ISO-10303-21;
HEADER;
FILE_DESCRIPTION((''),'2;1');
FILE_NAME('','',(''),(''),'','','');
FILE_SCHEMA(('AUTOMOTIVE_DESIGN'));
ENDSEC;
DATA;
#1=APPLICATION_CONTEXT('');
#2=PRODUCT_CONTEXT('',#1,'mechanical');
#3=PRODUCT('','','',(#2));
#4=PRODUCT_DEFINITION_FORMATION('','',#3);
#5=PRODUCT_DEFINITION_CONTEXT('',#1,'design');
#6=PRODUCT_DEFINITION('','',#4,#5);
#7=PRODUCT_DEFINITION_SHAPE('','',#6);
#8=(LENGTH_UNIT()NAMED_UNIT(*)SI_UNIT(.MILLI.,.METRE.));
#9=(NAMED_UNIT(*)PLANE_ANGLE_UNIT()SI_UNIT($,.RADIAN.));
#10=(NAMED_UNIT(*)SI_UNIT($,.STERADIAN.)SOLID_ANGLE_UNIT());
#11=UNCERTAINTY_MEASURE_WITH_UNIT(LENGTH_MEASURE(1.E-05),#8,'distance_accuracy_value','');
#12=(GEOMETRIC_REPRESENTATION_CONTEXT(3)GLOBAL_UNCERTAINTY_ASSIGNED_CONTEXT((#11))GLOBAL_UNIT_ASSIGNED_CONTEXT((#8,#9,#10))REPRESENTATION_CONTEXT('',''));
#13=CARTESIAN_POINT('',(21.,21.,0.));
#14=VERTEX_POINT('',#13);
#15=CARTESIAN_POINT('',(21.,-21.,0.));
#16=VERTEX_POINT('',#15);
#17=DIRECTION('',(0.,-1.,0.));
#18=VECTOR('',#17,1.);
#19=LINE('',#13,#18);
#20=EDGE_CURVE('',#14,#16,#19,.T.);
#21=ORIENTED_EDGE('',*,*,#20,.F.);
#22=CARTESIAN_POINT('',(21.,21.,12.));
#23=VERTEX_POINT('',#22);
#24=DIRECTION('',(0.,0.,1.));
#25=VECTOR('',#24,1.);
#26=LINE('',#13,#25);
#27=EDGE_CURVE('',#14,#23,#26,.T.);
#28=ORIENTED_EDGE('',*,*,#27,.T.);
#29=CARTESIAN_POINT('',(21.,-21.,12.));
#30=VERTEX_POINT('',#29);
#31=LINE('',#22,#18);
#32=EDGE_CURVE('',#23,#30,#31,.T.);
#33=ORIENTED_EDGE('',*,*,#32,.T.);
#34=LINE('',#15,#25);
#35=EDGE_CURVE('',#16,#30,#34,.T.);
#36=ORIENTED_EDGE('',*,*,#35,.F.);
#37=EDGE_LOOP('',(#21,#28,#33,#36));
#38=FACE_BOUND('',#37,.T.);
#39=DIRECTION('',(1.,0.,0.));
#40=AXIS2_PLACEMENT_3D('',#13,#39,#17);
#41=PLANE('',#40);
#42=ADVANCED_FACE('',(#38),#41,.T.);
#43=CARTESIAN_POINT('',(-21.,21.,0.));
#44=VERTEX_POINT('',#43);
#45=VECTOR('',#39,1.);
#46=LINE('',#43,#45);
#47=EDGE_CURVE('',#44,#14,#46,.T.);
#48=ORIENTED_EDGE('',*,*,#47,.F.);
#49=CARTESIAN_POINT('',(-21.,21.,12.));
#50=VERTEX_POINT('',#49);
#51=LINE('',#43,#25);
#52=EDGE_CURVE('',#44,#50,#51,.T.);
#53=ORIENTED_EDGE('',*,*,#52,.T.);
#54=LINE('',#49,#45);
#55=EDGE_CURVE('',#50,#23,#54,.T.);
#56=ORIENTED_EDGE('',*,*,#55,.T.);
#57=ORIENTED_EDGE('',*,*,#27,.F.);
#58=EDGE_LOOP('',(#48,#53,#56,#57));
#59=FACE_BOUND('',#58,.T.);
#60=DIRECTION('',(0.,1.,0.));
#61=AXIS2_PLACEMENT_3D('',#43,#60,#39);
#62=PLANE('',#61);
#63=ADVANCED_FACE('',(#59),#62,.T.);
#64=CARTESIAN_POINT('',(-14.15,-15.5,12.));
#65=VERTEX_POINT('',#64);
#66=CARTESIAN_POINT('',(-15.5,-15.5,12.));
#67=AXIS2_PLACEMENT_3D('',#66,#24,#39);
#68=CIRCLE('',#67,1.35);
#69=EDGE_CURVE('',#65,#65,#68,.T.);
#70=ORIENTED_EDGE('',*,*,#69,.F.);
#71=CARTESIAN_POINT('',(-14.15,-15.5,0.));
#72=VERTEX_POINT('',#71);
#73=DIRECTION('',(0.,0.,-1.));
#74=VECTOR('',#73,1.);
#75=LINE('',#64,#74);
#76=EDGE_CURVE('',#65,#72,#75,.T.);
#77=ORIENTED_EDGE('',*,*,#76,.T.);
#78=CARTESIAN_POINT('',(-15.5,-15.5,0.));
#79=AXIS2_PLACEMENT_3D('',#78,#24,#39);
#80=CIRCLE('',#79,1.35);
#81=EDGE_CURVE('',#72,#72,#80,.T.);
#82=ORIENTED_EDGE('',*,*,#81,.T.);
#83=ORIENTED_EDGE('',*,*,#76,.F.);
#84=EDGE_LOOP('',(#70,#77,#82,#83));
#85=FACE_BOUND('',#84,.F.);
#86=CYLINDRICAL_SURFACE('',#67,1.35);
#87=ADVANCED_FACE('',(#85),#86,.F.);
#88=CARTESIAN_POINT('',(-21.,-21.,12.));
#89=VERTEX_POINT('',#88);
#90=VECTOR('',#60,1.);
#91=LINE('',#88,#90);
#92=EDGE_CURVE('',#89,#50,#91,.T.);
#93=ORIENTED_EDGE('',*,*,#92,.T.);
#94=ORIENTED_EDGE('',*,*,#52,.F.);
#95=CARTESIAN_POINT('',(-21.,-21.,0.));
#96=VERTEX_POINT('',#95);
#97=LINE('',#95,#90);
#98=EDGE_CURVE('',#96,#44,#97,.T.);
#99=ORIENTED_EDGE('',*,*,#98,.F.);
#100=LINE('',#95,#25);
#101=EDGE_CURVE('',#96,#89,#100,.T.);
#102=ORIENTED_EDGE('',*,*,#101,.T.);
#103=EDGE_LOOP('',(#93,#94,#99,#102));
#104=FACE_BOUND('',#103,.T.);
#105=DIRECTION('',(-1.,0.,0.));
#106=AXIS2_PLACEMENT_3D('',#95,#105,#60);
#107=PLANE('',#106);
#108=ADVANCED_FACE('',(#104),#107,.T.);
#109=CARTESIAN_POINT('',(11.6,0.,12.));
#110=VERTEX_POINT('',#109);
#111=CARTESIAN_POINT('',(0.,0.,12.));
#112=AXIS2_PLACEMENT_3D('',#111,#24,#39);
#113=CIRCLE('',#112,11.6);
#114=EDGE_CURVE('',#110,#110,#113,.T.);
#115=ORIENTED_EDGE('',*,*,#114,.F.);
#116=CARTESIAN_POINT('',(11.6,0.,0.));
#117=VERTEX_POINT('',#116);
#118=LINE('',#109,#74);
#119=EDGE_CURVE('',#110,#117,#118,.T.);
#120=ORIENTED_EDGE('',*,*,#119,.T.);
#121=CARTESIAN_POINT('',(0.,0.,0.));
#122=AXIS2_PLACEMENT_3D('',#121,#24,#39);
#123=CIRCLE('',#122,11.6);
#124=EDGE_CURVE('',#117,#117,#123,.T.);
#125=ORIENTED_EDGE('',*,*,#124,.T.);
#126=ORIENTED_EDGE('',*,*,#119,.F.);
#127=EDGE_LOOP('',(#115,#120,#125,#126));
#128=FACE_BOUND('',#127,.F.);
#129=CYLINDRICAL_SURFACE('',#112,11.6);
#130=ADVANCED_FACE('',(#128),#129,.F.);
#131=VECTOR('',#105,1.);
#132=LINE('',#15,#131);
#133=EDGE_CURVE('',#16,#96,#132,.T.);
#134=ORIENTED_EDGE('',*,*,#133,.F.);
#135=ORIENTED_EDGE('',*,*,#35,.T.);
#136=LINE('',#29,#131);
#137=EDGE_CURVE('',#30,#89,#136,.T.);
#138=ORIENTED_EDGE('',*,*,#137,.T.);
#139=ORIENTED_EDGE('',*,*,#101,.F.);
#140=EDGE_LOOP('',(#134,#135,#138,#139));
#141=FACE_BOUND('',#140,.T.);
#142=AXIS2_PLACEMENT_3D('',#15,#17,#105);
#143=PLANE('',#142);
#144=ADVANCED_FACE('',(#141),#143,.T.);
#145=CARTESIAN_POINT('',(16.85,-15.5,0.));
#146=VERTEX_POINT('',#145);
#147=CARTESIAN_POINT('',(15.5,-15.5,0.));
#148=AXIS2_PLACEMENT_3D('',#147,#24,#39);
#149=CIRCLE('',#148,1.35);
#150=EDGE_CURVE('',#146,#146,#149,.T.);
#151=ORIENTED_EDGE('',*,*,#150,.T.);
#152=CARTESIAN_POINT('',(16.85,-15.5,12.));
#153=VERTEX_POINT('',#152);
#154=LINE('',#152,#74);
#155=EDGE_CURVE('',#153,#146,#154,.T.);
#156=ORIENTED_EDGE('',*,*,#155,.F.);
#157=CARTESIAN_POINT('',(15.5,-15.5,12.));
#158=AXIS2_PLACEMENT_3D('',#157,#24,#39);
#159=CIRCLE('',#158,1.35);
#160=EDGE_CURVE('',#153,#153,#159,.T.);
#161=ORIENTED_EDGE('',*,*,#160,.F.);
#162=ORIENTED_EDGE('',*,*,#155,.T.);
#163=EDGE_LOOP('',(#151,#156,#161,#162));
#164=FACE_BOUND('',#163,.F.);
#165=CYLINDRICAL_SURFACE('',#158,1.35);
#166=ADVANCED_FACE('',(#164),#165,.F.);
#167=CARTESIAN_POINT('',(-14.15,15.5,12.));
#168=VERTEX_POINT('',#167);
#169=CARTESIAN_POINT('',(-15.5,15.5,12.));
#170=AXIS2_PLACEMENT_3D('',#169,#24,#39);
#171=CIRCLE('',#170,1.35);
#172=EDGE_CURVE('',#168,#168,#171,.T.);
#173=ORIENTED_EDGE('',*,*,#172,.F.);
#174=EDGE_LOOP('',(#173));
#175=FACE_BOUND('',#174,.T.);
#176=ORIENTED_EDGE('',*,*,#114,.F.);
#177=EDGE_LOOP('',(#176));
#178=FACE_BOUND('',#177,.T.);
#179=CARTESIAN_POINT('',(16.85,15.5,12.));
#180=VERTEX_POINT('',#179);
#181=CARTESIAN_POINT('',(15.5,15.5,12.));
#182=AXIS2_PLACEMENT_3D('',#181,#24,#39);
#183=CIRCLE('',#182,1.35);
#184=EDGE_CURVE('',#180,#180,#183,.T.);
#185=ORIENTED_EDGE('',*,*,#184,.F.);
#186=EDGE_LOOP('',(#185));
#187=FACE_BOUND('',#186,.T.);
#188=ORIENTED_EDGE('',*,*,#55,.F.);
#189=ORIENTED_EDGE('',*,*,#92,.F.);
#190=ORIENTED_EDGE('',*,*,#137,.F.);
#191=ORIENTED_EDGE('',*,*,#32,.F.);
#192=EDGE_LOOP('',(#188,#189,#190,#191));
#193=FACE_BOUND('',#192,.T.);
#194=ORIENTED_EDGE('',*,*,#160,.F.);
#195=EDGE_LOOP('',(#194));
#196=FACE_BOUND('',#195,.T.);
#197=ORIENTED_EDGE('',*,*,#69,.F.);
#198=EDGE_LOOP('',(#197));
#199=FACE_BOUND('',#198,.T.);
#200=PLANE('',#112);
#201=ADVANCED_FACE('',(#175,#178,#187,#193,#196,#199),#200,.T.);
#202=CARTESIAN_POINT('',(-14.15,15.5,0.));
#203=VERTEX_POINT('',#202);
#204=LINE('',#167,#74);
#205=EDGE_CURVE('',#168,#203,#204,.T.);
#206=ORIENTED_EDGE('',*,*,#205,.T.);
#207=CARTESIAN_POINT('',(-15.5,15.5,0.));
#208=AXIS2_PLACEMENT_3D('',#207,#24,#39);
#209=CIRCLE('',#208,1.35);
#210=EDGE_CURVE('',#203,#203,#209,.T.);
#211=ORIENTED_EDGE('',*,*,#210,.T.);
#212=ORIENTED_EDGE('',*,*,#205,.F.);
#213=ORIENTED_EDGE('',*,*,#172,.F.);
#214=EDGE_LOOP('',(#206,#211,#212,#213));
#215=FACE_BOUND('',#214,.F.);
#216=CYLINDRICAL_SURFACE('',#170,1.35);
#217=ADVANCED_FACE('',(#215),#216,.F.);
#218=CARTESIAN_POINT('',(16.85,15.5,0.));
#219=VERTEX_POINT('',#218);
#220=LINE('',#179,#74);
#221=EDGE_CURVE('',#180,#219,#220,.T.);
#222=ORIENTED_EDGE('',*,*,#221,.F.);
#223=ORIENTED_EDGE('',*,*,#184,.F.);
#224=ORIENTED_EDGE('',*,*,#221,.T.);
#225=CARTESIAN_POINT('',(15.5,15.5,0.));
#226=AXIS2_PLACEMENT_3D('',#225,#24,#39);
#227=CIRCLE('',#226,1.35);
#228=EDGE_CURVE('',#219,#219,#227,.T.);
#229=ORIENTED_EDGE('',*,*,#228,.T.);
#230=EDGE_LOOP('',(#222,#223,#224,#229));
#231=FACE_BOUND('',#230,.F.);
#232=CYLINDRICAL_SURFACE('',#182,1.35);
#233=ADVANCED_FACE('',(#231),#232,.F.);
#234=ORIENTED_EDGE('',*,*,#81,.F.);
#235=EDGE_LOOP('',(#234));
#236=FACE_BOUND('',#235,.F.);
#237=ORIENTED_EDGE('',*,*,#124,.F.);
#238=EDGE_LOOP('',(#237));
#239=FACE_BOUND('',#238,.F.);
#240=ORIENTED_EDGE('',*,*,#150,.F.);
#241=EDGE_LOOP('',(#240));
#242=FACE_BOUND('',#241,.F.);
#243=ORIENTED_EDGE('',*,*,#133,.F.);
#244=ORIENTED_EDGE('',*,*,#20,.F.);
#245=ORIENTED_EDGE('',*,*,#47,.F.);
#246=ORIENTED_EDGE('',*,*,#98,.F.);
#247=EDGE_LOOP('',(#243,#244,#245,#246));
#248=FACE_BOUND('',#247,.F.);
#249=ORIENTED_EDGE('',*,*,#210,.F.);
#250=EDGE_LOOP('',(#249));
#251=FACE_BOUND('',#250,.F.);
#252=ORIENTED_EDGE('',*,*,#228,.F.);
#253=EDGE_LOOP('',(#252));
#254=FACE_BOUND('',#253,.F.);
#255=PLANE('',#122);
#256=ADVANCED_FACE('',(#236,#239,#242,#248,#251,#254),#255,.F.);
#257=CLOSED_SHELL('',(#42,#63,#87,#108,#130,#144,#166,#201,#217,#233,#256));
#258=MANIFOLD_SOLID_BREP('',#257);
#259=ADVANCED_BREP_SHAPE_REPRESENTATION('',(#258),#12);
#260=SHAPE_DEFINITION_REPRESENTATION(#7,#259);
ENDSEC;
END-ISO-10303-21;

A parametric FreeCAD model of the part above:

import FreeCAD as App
import Part
import Sketcher

V = App.Vector
Q = App.Units.Quantity


def add_polygon(sketch, points):
    """Adds a closed chain of lines whose ends are joined by coincident constraints."""
    first, n = sketch.GeometryCount, len(points)
    for a, b in zip(points, points[1:] + points[:1]):
        sketch.addGeometry(Part.LineSegment(App.Vector(*a, 0), App.Vector(*b, 0)), False)
    for i in range(n):
        sketch.addConstraint(Sketcher.Constraint("Coincident", first + i, 2, first + (i + 1) % n, 1))

doc = App.newDocument("Part")
body = doc.addObject("PartDesign::Body", "Body")

# Sketch on XY plane
sketch1 = doc.addObject("Sketcher::SketchObject", "Sketch")
body.addObject(sketch1)
sketch1.AttachmentSupport = (doc.XY_Plane, [""])
sketch1.MapMode = "FlatFace"
add_polygon(sketch1, [(-21, -21), (21, -21), (21, 21), (-21, 21)])  # lines 0-3
sketch1.addConstraint([
    Sketcher.Constraint("Horizontal", 0),
    Sketcher.Constraint("Vertical", 1),
    Sketcher.Constraint("Horizontal", 2),
    Sketcher.Constraint("Vertical", 3),
    Sketcher.Constraint("Symmetric", 0, 2, 2, 2, -1, 1),
    Sketcher.Constraint("Equal", 2, 1),
    Sketcher.Constraint("DistanceX", 0, 1, 0, 2, Q("42 mm")),
])
pad1 = doc.addObject("PartDesign::Pad", "Pad")
body.addObject(pad1)
pad1.Profile = sketch1
pad1.Length = 12

# Sketch on XY plane
sketch2 = doc.addObject("Sketcher::SketchObject", "Sketch001")
body.addObject(sketch2)
sketch2.AttachmentSupport = (doc.XY_Plane, [""])
sketch2.MapMode = "FlatFace"
sketch2.AttachmentOffset = App.Placement(V(0, 0, 12), App.Rotation())
sketch2.addGeometry(Part.Circle(V(0, 0, 0), V(0, 0, 1), 12), False)
sketch2.addConstraint([
    Sketcher.Constraint("Coincident", 0, 3, -1, 1),
    Sketcher.Constraint("Diameter", 0, Q("23.2 mm")),
])
pocket1 = doc.addObject("PartDesign::Pocket", "Pocket")
body.addObject(pocket1)
pocket1.Profile = sketch2
pocket1.Type = "UpToFirst"

# Sketch on XY plane
sketch3 = doc.addObject("Sketcher::SketchObject", "Sketch002")
body.addObject(sketch3)
sketch3.AttachmentSupport = (doc.XY_Plane, [""])
sketch3.MapMode = "FlatFace"
sketch3.AttachmentOffset = App.Placement(V(0, 0, 12), App.Rotation())
sketch3.addGeometry([
    Part.Circle(V(-15.5, 15.5, 0), V(0, 0, 1), 1.4),
    Part.Circle(V(15.5, 15.5, 0), V(0, 0, 1), 1.4),
    Part.Circle(V(-15.5, -15.5, 0), V(0, 0, 1), 1.4),
    Part.Circle(V(15.5, -15.5, 0), V(0, 0, 1), 1.4),
], False)
sketch3.addConstraint([
    Sketcher.Constraint("Equal", 0, 1),
    Sketcher.Constraint("Equal", 1, 2),
    Sketcher.Constraint("Equal", 2, 3),
    Sketcher.Constraint("Symmetric", 1, 3, 2, 3, -1, 1),
    Sketcher.Constraint("Symmetric", 0, 3, 3, 3, -1, 1),
    Sketcher.Constraint("Symmetric", 0, 3, 1, 3, -2),
    Sketcher.Constraint("Diameter", 0, Q("2.7 mm")),
    Sketcher.Constraint("DistanceX", 0, 3, 1, 3, Q("31 mm")),
    Sketcher.Constraint("DistanceY", 2, 3, 0, 3, Q("31 mm")),
])
pocket2 = doc.addObject("PartDesign::Pocket", "Pocket001")
body.addObject(pocket2)
pocket2.Profile = sketch3
pocket2.Length = 12

doc.recompute()
